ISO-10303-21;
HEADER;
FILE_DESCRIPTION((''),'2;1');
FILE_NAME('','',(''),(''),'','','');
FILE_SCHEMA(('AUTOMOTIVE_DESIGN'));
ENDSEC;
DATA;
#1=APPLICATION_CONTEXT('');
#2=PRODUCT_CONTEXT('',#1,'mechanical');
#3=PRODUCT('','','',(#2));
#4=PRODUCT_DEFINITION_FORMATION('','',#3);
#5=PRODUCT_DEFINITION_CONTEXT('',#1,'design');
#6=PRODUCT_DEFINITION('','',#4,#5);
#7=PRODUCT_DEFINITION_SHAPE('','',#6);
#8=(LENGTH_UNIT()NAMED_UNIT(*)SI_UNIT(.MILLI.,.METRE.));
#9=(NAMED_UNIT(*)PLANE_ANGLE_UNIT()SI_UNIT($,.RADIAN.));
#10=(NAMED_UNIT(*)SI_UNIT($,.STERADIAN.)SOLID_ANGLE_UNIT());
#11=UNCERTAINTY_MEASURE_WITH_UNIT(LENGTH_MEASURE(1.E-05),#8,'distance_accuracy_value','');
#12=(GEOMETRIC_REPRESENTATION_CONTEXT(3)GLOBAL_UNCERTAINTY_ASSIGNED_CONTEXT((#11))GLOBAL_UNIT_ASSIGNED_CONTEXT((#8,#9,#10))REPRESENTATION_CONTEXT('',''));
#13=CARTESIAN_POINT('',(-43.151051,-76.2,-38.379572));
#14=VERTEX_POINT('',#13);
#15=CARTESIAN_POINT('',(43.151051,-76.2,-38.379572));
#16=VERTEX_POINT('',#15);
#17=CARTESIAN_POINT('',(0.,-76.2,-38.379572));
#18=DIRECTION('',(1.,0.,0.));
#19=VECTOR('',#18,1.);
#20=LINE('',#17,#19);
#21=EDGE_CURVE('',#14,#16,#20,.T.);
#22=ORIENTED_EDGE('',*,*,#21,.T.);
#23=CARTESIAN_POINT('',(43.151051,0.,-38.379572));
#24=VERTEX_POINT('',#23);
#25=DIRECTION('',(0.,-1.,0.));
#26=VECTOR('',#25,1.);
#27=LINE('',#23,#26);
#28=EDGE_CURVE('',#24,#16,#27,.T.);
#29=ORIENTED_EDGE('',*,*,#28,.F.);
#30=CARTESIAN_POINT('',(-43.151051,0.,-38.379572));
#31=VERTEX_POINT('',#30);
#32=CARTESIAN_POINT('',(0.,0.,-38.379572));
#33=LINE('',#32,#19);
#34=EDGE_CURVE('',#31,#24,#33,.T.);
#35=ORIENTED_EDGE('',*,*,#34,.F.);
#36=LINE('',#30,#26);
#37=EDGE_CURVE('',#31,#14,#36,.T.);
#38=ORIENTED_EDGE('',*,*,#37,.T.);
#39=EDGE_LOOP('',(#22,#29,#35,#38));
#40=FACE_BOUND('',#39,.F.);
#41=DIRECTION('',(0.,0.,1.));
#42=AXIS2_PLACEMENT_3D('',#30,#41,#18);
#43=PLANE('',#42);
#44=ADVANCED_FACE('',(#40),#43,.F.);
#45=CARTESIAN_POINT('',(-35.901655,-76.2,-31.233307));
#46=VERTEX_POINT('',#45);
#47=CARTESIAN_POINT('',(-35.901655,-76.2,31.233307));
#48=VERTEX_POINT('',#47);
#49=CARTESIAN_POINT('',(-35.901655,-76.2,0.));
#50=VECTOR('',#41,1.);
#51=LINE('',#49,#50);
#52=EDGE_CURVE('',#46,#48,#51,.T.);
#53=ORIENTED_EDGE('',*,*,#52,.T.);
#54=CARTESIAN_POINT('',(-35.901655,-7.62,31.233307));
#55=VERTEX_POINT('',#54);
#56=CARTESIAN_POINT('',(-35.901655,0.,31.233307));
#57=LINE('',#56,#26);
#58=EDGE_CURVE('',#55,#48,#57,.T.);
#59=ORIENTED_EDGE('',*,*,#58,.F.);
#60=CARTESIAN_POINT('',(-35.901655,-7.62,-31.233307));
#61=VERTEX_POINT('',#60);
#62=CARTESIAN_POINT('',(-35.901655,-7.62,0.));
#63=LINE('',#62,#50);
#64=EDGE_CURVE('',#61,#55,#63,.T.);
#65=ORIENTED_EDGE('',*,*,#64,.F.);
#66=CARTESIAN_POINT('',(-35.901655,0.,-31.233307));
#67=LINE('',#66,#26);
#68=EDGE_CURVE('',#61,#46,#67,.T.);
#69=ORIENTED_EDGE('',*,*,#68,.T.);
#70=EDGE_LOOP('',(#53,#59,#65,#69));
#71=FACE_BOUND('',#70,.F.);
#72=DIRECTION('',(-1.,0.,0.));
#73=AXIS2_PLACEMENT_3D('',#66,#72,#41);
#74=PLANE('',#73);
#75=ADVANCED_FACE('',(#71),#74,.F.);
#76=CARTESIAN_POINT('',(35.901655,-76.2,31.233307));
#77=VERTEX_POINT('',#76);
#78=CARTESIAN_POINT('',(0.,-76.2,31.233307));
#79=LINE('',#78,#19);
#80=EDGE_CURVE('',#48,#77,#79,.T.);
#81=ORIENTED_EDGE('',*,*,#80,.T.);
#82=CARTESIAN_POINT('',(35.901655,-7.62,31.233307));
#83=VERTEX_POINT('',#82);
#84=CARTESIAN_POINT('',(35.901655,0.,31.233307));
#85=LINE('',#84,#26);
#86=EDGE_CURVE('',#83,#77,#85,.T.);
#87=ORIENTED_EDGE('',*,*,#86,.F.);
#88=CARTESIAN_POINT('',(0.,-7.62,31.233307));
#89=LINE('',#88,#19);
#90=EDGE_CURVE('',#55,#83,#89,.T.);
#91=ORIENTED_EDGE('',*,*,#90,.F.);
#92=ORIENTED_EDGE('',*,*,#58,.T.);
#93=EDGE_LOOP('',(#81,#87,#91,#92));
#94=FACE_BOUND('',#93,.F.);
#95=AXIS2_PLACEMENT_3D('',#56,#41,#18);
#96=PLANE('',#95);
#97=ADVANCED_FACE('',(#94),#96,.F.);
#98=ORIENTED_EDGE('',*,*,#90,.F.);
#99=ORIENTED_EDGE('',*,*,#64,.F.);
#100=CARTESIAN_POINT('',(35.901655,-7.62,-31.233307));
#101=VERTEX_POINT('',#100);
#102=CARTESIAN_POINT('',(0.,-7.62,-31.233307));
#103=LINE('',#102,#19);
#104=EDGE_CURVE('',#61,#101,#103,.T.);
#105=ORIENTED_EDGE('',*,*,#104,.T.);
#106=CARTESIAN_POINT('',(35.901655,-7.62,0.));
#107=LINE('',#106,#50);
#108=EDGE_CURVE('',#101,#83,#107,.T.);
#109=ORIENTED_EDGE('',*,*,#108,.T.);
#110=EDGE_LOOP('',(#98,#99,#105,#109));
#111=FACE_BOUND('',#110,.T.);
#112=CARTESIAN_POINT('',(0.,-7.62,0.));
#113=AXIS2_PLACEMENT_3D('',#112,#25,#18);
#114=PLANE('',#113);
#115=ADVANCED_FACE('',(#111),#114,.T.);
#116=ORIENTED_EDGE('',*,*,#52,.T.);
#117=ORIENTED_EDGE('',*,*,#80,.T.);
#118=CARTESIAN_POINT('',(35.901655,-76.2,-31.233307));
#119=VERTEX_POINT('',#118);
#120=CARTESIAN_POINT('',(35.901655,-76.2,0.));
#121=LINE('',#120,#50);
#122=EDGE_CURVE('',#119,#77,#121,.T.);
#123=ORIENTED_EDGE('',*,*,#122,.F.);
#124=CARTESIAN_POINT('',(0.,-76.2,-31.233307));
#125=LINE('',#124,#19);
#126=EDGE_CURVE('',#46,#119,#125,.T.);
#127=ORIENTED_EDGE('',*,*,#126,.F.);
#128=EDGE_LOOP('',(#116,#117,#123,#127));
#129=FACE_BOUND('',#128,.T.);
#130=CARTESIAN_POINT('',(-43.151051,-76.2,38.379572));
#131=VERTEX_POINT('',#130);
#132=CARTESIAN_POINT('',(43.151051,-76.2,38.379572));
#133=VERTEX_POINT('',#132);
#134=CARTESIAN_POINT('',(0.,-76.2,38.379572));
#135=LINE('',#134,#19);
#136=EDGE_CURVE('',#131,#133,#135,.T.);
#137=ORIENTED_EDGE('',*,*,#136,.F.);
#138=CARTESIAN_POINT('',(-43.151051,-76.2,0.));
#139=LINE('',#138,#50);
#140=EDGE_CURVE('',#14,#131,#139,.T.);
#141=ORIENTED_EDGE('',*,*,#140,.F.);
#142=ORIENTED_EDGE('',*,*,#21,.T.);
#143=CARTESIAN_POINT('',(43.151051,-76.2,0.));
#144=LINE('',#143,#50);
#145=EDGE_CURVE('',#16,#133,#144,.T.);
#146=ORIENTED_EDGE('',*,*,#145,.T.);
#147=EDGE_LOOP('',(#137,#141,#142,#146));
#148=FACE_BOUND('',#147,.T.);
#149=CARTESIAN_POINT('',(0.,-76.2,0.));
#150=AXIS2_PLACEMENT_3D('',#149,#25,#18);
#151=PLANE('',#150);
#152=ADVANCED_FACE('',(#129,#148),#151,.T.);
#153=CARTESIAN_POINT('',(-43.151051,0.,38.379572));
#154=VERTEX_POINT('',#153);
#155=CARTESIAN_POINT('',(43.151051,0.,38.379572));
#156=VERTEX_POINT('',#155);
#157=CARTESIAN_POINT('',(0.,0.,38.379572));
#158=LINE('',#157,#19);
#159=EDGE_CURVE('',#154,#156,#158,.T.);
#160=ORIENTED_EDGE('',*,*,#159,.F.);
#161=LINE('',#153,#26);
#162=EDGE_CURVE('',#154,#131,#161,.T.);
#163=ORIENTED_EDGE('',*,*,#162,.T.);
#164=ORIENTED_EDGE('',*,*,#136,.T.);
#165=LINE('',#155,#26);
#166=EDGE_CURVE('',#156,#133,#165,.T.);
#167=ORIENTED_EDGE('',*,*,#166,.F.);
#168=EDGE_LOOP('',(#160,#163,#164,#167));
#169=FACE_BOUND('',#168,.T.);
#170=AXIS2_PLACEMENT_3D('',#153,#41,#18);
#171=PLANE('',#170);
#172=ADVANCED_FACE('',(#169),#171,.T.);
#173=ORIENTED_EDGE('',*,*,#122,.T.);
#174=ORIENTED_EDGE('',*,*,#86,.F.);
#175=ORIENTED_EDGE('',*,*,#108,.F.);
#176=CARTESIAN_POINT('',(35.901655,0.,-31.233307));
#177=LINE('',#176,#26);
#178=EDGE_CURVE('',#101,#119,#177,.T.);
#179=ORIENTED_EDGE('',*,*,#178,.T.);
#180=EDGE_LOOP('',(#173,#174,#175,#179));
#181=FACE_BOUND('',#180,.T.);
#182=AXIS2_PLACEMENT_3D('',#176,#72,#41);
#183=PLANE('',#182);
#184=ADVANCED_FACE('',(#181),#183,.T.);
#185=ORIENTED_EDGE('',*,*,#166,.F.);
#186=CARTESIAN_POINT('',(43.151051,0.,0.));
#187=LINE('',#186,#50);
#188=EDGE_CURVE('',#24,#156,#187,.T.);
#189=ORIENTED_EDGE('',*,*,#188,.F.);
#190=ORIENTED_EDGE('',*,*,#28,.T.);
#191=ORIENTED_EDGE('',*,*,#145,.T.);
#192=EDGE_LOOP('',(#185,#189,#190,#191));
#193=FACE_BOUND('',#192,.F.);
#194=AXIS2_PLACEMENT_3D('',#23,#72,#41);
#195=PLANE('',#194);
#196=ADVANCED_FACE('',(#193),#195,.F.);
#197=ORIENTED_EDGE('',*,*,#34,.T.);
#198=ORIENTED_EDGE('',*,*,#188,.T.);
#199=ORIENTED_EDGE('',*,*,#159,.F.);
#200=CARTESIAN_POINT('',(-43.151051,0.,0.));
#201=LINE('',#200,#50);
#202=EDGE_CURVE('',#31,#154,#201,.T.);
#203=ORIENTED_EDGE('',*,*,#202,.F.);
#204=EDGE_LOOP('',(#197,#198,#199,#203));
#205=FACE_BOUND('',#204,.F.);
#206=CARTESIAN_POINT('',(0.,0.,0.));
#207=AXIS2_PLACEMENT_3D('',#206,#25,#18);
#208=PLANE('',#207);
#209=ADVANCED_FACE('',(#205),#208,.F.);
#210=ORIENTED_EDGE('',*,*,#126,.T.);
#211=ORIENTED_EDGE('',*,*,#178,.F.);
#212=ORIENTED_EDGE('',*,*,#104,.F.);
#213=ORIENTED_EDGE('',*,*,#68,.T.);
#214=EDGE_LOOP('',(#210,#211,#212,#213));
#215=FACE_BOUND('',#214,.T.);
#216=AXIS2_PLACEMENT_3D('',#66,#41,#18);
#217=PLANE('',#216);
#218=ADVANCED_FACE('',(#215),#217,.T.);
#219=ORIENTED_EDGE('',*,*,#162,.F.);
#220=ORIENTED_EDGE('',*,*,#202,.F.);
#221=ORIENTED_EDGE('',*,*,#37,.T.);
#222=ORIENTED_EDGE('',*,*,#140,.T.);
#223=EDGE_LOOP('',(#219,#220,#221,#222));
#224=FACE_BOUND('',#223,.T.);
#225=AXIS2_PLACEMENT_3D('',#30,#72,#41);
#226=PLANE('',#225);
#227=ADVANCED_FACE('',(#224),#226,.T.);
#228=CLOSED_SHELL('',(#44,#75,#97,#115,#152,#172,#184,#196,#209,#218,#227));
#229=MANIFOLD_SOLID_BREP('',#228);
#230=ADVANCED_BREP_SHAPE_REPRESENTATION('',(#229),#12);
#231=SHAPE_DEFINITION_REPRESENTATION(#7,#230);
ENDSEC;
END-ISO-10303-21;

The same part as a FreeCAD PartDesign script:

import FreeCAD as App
import Part
import Sketcher
Q = App.Units.Quantity

doc = App.newDocument("Part")
body = doc.addObject("PartDesign::Body", "Body")

# Sketch on XZ plane
sketch1 = doc.addObject("Sketcher::SketchObject", "Sketch")
body.addObject(sketch1)
sketch1.AttachmentSupport = (doc.XZ_Plane, [""])
sketch1.MapMode = "FlatFace"
sketch1.addGeometry([
    Part.LineSegment(App.Vector(-36, 31, 0), App.Vector(-36, -31, 0)),
    Part.LineSegment(App.Vector(-36, -31, 0), App.Vector(36, -31, 0)),
    Part.LineSegment(App.Vector(36, -31, 0), App.Vector(36, 31, 0)),
    Part.LineSegment(App.Vector(36, 31, 0), App.Vector(-36, 31, 0)),
], False)
sketch1.addConstraint([
    Sketcher.Constraint("Coincident", 0, 2, 1, 1),
    Sketcher.Constraint("Coincident", 1, 2, 2, 1),
    Sketcher.Constraint("Coincident", 2, 2, 3, 1),
    Sketcher.Constraint("Coincident", 3, 2, 0, 1),
    Sketcher.Constraint("Vertical", 0),
    Sketcher.Constraint("Horizontal", 1),
    Sketcher.Constraint("Vertical", 2),
    Sketcher.Constraint("Horizontal", 3),
    Sketcher.Constraint("Symmetric", 0, 2, 2, 2, -1, 1),
    Sketcher.Constraint("DistanceX", 1, 1, 1, 2, Q("71.80331 mm")),
    Sketcher.Constraint("DistanceY", 0, 2, 0, 1, Q("62.466614 mm")),
])
pad1 = doc.addObject("PartDesign::Pad", "Pad")
body.addObject(pad1)
pad1.Profile = sketch1
pad1.Length = Q("0.3 in")

# Sketch on XZ plane
sketch2 = doc.addObject("Sketcher::SketchObject", "Sketch001")
body.addObject(sketch2)
sketch2.AttachmentSupport = (doc.XZ_Plane, [""])
sketch2.MapMode = "FlatFace"
sketch2.addGeometry([
    Part.LineSegment(App.Vector(-43, 38, 0), App.Vector(-43, -38, 0)),  # 0
    Part.LineSegment(App.Vector(-43, -38, 0), App.Vector(43, -38, 0)),  # 1
    Part.LineSegment(App.Vector(43, -38, 0), App.Vector(43, 38, 0)),  # 2
    Part.LineSegment(App.Vector(43, 38, 0), App.Vector(-43, 38, 0)),  # 3
    Part.LineSegment(App.Vector(36, -31, 0), App.Vector(-36, -31, 0)),  # 4
    Part.LineSegment(App.Vector(-36, -31, 0), App.Vector(-36, 31, 0)),  # 5
    Part.LineSegment(App.Vector(-36, 31, 0), App.Vector(36, 31, 0)),  # 6
    Part.LineSegment(App.Vector(36, 31, 0), App.Vector(36, -31, 0)),  # 7
], False)
sketch2.addConstraint([
    Sketcher.Constraint("Coincident", 0, 2, 1, 1),
    Sketcher.Constraint("Coincident", 1, 2, 2, 1),
    Sketcher.Constraint("Coincident", 2, 2, 3, 1),
    Sketcher.Constraint("Coincident", 3, 2, 0, 1),
    Sketcher.Constraint("Coincident", 4, 2, 5, 1),
    Sketcher.Constraint("Coincident", 5, 2, 6, 1),
    Sketcher.Constraint("Coincident", 6, 2, 7, 1),
    Sketcher.Constraint("Coincident", 7, 2, 4, 1),
    Sketcher.Constraint("Vertical", 0),
    Sketcher.Constraint("Horizontal", 1),
    Sketcher.Constraint("Vertical", 2),
    Sketcher.Constraint("Horizontal", 3),
    Sketcher.Constraint("Horizontal", 4),
    Sketcher.Constraint("Vertical", 5),
    Sketcher.Constraint("Horizontal", 6),
    Sketcher.Constraint("Vertical", 7),
    Sketcher.Constraint("Symmetric", 0, 2, 2, 2, -1, 1),
    Sketcher.Constraint("Symmetric", 4, 2, 6, 2, -1, 1),
    Sketcher.Constraint("DistanceX", 4, 2, 4, 1, Q("71.80331 mm")),
    Sketcher.Constraint("DistanceX", 1, 1, 1, 2, Q("86.302102 mm")),
    Sketcher.Constraint("DistanceY", 0, 2, 0, 1, Q("76.759144 mm")),
    Sketcher.Constraint("DistanceY", 5, 1, 5, 2, Q("62.466614 mm")),
])
pad2 = doc.addObject("PartDesign::Pad", "Pad001")
body.addObject(pad2)
pad2.Profile = sketch2
pad2.Length = Q("3 in")

doc.recompute()
